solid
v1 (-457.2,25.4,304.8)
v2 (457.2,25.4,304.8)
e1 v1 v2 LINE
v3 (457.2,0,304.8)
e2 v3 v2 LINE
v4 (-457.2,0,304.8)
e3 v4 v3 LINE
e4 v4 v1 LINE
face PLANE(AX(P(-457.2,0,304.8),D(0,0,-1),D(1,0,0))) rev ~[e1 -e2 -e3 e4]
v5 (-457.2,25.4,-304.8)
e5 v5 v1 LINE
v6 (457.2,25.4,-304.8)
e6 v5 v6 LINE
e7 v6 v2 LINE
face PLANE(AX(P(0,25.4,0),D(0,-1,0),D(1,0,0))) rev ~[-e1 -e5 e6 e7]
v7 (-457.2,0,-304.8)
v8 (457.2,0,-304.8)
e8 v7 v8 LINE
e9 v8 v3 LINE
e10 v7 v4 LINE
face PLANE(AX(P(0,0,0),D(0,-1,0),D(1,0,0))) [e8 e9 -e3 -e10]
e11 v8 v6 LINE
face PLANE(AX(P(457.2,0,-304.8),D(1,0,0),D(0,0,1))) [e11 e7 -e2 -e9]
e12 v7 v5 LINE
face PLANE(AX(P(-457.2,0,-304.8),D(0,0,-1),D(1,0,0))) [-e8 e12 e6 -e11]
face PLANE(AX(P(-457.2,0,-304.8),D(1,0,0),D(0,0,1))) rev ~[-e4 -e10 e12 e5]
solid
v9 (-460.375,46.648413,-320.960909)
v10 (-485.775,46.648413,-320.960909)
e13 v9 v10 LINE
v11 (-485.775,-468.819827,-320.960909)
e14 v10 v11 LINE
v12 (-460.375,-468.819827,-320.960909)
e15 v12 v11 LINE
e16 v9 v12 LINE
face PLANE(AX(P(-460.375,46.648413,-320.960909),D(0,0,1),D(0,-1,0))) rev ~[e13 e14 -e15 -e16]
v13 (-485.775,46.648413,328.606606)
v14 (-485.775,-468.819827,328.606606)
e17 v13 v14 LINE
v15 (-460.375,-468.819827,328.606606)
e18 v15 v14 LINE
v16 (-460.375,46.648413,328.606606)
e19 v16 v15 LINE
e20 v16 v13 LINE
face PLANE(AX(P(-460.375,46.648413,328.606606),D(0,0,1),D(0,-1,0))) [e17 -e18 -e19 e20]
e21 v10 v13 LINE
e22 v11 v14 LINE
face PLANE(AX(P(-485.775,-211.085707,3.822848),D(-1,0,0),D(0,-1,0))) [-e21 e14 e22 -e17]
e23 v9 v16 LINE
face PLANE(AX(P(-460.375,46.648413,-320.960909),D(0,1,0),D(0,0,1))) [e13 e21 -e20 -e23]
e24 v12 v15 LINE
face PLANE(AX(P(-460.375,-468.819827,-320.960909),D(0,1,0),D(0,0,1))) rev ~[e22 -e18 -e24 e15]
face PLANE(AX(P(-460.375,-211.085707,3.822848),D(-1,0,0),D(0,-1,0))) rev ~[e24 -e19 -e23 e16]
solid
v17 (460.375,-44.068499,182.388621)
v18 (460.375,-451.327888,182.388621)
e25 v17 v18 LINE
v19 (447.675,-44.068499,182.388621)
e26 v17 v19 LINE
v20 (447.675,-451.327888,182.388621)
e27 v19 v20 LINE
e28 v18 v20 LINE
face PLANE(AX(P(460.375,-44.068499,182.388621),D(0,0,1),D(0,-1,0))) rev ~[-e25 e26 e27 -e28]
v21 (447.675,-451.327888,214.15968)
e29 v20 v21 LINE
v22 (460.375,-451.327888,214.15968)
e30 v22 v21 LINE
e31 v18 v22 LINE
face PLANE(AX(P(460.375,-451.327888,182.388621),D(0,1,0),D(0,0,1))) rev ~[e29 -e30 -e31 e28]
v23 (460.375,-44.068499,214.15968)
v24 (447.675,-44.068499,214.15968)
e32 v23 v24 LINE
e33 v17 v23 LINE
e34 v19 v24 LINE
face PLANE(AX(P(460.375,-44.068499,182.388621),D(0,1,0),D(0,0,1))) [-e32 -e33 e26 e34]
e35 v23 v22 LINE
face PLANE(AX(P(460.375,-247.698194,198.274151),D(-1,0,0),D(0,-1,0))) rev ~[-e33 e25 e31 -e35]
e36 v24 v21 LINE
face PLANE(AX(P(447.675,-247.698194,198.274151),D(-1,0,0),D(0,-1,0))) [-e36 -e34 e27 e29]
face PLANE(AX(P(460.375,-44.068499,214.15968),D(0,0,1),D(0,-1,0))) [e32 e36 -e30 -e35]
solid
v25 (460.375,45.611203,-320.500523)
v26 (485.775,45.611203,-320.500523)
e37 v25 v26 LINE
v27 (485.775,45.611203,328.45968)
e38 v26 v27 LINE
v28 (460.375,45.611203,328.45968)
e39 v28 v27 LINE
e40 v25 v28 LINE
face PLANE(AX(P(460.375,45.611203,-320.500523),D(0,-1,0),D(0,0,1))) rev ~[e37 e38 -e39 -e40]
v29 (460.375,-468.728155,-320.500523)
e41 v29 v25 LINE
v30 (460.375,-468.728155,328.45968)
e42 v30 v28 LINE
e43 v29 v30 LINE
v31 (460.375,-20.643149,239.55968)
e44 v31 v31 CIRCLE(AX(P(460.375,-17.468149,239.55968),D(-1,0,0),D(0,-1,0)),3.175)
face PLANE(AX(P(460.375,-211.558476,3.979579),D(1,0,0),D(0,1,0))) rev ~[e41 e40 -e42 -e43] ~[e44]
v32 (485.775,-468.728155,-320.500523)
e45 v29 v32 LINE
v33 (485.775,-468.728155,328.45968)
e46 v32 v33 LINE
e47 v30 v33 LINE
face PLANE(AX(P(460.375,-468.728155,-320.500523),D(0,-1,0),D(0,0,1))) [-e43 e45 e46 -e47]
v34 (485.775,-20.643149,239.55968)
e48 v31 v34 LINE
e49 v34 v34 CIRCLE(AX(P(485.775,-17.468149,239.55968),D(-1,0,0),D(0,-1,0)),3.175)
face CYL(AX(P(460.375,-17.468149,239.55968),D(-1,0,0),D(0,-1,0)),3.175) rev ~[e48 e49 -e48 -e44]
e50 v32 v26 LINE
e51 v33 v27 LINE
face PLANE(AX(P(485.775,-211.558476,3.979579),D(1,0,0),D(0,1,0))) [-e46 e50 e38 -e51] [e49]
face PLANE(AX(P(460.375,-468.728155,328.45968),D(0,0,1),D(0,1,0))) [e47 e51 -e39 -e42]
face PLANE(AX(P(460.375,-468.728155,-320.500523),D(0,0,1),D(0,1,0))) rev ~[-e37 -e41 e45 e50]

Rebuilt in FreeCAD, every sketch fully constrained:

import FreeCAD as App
import Part
import Sketcher

V = App.Vector
Q = App.Units.Quantity


def add_polygon(sketch, points):
    """Adds a closed chain of lines whose ends are joined by coincident constraints."""
    first, n = sketch.GeometryCount, len(points)
    for a, b in zip(points, points[1:] + points[:1]):
        sketch.addGeometry(Part.LineSegment(App.Vector(*a, 0), App.Vector(*b, 0)), False)
    for i in range(n):
        sketch.addConstraint(Sketcher.Constraint("Coincident", first + i, 2, first + (i + 1) % n, 1))

doc = App.newDocument("Part")
body = doc.addObject("PartDesign::Body", "Body")

sketch1 = doc.addObject("Sketcher::SketchObject", "Sketch")
body.addObject(sketch1)
sketch1.AttachmentSupport = (doc.XZ_Plane, [""])
sketch1.MapMode = "FlatFace"
add_polygon(sketch1, [(-457, 305), (-457, -305), (457, -305), (457, 305)])
sketch1.addConstraint([
    Sketcher.Constraint("Vertical", 0),
    Sketcher.Constraint("Horizontal", 1),
    Sketcher.Constraint("Vertical", 2),
    Sketcher.Constraint("Horizontal", 3),
    Sketcher.Constraint("Symmetric", 0, 2, 2, 2, -1, 1),
    Sketcher.Constraint("DistanceX", 1, 1, 1, 2, Q("36 in")),
    Sketcher.Constraint("DistanceY", 0, 2, 0, 1, Q("24 in")),
])
pad1 = doc.addObject("PartDesign::Pad", "Pad")
body.addObject(pad1)
pad1.Profile = sketch1
pad1.Length = Q("1 in")
pad1.Reversed = True
body2 = doc.addObject("PartDesign::Body", "Body001")

sketch2 = doc.addObject("Sketcher::SketchObject", "Sketch001")
body2.addObject(sketch2)
sketch2.AttachmentSupport = (doc.getObject("YZ_Plane001"), [""])
sketch2.MapMode = "FlatFace"
sketch2.AttachmentOffset = App.Placement(V(0, 0, 18.125 * 25.4), App.Rotation())
add_polygon(sketch2, [(-469, 328), (-469, -321), (46, -321), (46, 328)])
sketch2.addConstraint([
    Sketcher.Constraint("Vertical", 0),
    Sketcher.Constraint("Horizontal", 1),
    Sketcher.Constraint("Vertical", 2),
    Sketcher.Constraint("Horizontal", 3),
    Sketcher.Constraint("DistanceX", 1, 1, 1, 2, Q("514.339358 mm")),
    Sketcher.Constraint("DistanceY", 0, 2, 0, 1, Q("648.960203 mm")),
    Sketcher.Constraint("DistanceY", -1, 1, 2, 2, Q("328.45968 mm")),
    Sketcher.Constraint("DistanceX", 0, 2, -1, 1, Q("468.728155 mm")),
])
pad2 = doc.addObject("PartDesign::Pad", "Pad001")
body2.addObject(pad2)
pad2.Profile = sketch2
pad2.Length = Q("1 in")

sketch3 = doc.addObject("Sketcher::SketchObject", "Sketch002")
body2.addObject(sketch3)
sketch3.AttachmentSupport = (doc.getObject("YZ_Plane001"), [""])
sketch3.MapMode = "FlatFace"
sketch3.AttachmentOffset = App.Placement(V(0, 0, 18.125 * 25.4), App.Rotation())
sketch3.addGeometry(Part.Circle(V(-17.5, 239.6, 0), V(0, 0, 1), 3.2), False)
sketch3.addConstraint([
    Sketcher.Constraint("Diameter", 0, Q("0.25 in")),
    Sketcher.Constraint("DistanceX", 0, 3, -1, 1, Q("17.468149 mm")),
    Sketcher.Constraint("DistanceY", -1, 1, 0, 3, Q("239.55968 mm")),
])
pocket1 = doc.addObject("PartDesign::Pocket", "Pocket")
body2.addObject(pocket1)
pocket1.Profile = sketch3
pocket1.Type = "ThroughAll"
pocket1.Reversed = True
body3 = doc.addObject("PartDesign::Body", "Body002")

sketch4 = doc.addObject("Sketcher::SketchObject", "Sketch003")
body3.addObject(sketch4)
sketch4.AttachmentSupport = (doc.getObject("YZ_Plane002"), [""])
sketch4.MapMode = "FlatFace"
sketch4.AttachmentOffset = App.Placement(V(0, 0, -18.125 * 25.4), App.Rotation())
add_polygon(sketch4, [(47, 329), (47, -321), (-469, -321), (-469, 329)])
sketch4.addConstraint([
    Sketcher.Constraint("Vertical", 0),
    Sketcher.Constraint("Horizontal", 1),
    Sketcher.Constraint("Vertical", 2),
    Sketcher.Constraint("Horizontal", 3),
    Sketcher.Constraint("DistanceX", 1, 2, 1, 1, Q("515.46824 mm")),
    Sketcher.Constraint("DistanceY", 0, 2, 0, 1, Q("649.567515 mm")),
    Sketcher.Constraint("DistanceY", 0, 2, -1, 1, Q("320.960909 mm")),
    Sketcher.Constraint("DistanceX", -1, 1, 0, 2, Q("46.648413 mm")),
])
pad3 = doc.addObject("PartDesign::Pad", "Pad002")
body3.addObject(pad3)
pad3.Profile = sketch4
pad3.Length = Q("1 in")
pad3.Reversed = True
body4 = doc.addObject("PartDesign::Body", "Body003")

sketch5 = doc.addObject("Sketcher::SketchObject", "Sketch004")
body4.addObject(sketch5)
sketch5.AttachmentSupport = (doc.getObject("YZ_Plane003"), [""])
sketch5.MapMode = "FlatFace"
sketch5.AttachmentOffset = App.Placement(V(0, 0, 18.125 * 25.4), App.Rotation())
add_polygon(sketch5, [(-44, 214), (-44, 182), (-451, 182), (-451, 214)])
sketch5.addConstraint([
    Sketcher.Constraint("Vertical", 0),
    Sketcher.Constraint("Horizontal", 1),
    Sketcher.Constraint("Vertical", 2),
    Sketcher.Constraint("Horizontal", 3),
    Sketcher.Constraint("DistanceX", 1, 2, 1, 1, Q("407.259389 mm")),
    Sketcher.Constraint("DistanceY", 0, 2, 0, 1, Q("31.771059 mm")),
    Sketcher.Constraint("DistanceX", 0, 2, -1, 1, Q("44.068499 mm")),
    Sketcher.Constraint("DistanceY", -1, 1, 0, 2, Q("182.388621 mm")),
])
pad4 = doc.addObject("PartDesign::Pad", "Pad003")
body4.addObject(pad4)
pad4.Profile = sketch5
pad4.Length = Q("0.5 in")
pad4.Reversed = True

doc.recompute()
